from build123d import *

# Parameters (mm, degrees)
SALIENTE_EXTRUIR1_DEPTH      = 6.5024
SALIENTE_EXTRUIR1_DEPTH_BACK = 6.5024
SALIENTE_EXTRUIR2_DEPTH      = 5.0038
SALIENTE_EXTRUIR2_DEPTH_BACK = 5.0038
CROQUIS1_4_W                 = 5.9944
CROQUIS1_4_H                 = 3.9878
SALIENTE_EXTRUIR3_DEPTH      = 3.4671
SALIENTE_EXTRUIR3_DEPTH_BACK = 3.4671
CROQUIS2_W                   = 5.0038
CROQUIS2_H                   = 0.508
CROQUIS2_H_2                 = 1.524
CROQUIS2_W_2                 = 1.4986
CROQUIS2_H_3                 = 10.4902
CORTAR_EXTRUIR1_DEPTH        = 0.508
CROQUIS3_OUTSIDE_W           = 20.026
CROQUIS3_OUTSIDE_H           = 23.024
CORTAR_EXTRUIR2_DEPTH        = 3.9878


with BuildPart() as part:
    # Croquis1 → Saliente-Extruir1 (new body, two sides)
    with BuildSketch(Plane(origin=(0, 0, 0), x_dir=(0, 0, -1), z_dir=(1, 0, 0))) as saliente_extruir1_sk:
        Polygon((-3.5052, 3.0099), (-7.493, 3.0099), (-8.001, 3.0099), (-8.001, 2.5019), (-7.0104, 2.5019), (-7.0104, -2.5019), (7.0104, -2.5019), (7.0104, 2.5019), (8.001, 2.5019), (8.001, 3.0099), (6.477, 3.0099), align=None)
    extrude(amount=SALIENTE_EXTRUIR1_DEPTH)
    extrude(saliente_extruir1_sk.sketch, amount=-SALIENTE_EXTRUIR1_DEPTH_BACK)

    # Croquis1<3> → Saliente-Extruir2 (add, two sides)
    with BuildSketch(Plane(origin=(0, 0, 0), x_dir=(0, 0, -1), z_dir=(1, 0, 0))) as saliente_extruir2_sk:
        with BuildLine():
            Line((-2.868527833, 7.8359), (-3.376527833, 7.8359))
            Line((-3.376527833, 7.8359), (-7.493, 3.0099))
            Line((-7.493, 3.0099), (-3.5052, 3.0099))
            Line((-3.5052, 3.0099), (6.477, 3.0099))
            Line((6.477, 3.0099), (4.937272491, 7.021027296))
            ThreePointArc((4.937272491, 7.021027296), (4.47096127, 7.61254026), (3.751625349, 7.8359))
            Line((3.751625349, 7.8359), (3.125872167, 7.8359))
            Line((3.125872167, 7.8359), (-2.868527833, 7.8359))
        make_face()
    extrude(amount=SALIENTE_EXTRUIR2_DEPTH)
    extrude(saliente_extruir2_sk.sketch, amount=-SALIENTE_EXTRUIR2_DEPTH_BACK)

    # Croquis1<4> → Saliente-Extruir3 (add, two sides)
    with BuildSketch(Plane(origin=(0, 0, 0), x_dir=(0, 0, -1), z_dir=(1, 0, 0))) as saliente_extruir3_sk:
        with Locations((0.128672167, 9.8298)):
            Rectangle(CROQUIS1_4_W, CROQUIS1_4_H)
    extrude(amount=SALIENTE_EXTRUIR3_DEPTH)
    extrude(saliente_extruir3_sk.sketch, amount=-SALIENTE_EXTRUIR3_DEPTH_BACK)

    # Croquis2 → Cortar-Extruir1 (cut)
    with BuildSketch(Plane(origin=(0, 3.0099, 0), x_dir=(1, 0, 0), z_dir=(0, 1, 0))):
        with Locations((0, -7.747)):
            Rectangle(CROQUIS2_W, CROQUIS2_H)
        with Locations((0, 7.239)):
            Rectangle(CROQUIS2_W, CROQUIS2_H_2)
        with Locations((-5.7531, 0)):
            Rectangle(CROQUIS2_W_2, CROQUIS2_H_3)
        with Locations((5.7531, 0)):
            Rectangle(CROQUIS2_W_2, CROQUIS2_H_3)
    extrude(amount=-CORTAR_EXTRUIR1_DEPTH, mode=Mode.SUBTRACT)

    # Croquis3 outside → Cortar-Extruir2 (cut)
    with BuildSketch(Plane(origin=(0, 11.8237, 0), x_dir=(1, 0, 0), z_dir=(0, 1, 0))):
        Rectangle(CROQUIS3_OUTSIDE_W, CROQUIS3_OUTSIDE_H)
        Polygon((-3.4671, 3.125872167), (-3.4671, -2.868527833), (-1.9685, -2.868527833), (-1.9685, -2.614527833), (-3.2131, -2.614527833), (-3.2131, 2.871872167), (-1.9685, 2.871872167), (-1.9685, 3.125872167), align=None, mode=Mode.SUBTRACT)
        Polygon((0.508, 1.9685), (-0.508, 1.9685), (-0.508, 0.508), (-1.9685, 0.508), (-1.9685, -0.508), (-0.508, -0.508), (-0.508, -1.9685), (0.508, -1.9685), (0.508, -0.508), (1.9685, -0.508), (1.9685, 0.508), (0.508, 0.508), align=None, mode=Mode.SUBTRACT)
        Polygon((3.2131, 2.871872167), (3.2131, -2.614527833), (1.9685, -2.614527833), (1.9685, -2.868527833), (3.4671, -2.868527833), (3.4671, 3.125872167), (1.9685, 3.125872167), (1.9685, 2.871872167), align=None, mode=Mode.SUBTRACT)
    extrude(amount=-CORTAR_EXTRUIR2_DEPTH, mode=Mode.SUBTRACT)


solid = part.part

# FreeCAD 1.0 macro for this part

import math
import FreeCAD as App
import Part
import Sketcher
Q = App.Units.Quantity

doc = App.newDocument("Part")
body = doc.addObject("PartDesign::Body", "Body")

# Sketch on YZ plane
sketch1 = body.newObject("Sketcher::SketchObject", "Sketch")
sketch1.AttachmentSupport = (doc.getObject("YZ_Plane"), [""])
sketch1.MapMode = "FlatFace"
sketch1.addGeometry([
    Part.LineSegment(App.Vector(3.0099, 8.001, 0), App.Vector(2.5019, 8.001, 0)),  # 0
    Part.LineSegment(App.Vector(2.5019, 8.001, 0), App.Vector(2.5019, 7.0104, 0)),  # 1
    Part.LineSegment(App.Vector(2.5019, 7.0104, 0), App.Vector(-2.5019, 7.0104, 0)),  # 2
    Part.LineSegment(App.Vector(-2.5019, 7.0104, 0), App.Vector(-2.5019, -7.0104, 0)),  # 3
    Part.LineSegment(App.Vector(-2.5019, -7.0104, 0), App.Vector(2.5019, -7.0104, 0)),  # 4
    Part.LineSegment(App.Vector(2.5019, -7.0104, 0), App.Vector(2.5019, -8.001, 0)),  # 5
    Part.LineSegment(App.Vector(2.5019, -8.001, 0), App.Vector(3.0099, -8.001, 0)),  # 6
    Part.LineSegment(App.Vector(3.0099, -8.001, 0), App.Vector(3.0099, 8.001, 0)),  # 7
], False)
sketch1.addConstraint([
    Sketcher.Constraint("Coincident", 0, 2, 1, 1),
    Sketcher.Constraint("Coincident", 1, 2, 2, 1),
    Sketcher.Constraint("Coincident", 2, 2, 3, 1),
    Sketcher.Constraint("Coincident", 3, 2, 4, 1),
    Sketcher.Constraint("Coincident", 4, 2, 5, 1),
    Sketcher.Constraint("Coincident", 5, 2, 6, 1),
    Sketcher.Constraint("Coincident", 6, 2, 7, 1),
    Sketcher.Constraint("Coincident", 7, 2, 0, 1),
    Sketcher.Constraint("Horizontal", 0),
    Sketcher.Constraint("Vertical", 1),
    Sketcher.Constraint("Horizontal", 2),
    Sketcher.Constraint("Vertical", 3),
    Sketcher.Constraint("Horizontal", 4),
    Sketcher.Constraint("Vertical", 5),
    Sketcher.Constraint("Horizontal", 6),
    Sketcher.Constraint("Vertical", 7),
    Sketcher.Constraint("Symmetric", 1, 2, 3, 2, -1, 1),
    Sketcher.Constraint("Symmetric", 0, 2, 5, 2, -1),
    Sketcher.Constraint("DistanceX", 0, 2, 0, 1, Q("0.02 in")),
    Sketcher.Constraint("DistanceY", 7, 1, 7, 2, Q("0.63 in")),
    Sketcher.Constraint("DistanceX", 2, 2, 2, 1, Q("0.197 in")),
    Sketcher.Constraint("DistanceY", 1, 2, 1, 1, Q("0.039 in")),
])
pad1 = body.newObject("PartDesign::Pad", "Pad")
pad1.Profile = sketch1
pad1.Type = "TwoLengths"
pad1.Length = Q("0.256 in")
pad1.Length2 = Q("0.256 in")

# Sketch on YZ plane
sketch2 = body.newObject("Sketcher::SketchObject", "Sketch001")
sketch2.AttachmentSupport = (doc.getObject("YZ_Plane"), [""])
sketch2.MapMode = "FlatFace"
sketch2.addGeometry([
    Part.LineSegment(App.Vector(7.8359, 3.376528, 0), App.Vector(3.0099, 7.493, 0)),  # 0
    Part.LineSegment(App.Vector(3.0099, 7.493, 0), App.Vector(3.0099, -6.477, 0)),  # 1
    Part.LineSegment(App.Vector(3.0099, -6.477, 0), App.Vector(7.021027, -4.937272, 0)),  # 2
    Part.ArcOfCircle(Part.Circle(App.Vector(6.5659, -3.751625, 0), App.Vector(0, 0, 1), 1.27), math.radians(-69), math.radians(0)),  # 3
    Part.LineSegment(App.Vector(7.8359, -3.751625, 0), App.Vector(7.8359, 3.376528, 0)),  # 4
], False)
sketch2.addConstraint([
    Sketcher.Constraint("Coincident", 0, 2, 1, 1),
    Sketcher.Constraint("Coincident", 1, 2, 2, 1),
    Sketcher.Constraint("Tangent", 2, 2, 3, 1),
    Sketcher.Constraint("Tangent", 3, 2, 4, 1),
    Sketcher.Constraint("Coincident", 4, 2, 0, 1),
    Sketcher.Constraint("Vertical", 1),
    Sketcher.Constraint("Vertical", 4),
    Sketcher.Constraint("Radius", 3, Q("0.05 in")),
    Sketcher.Constraint("Angle", 2, Q("21 deg")),
    Sketcher.Constraint("DistanceY", 1, 2, 1, 1, Q("0.55 in")),
    Sketcher.Constraint("DistanceX", 0, 2, 3, 3, Q("0.14 in")),
    Sketcher.Constraint("DistanceY", -1, 1, 0, 2, Q("0.295 in")),
    Sketcher.Constraint("DistanceX", -1, 1, 3, 3, Q("0.2585 in")),
    Sketcher.Constraint("DistanceY", 2, 2, 4, 2, 8.3138),
])
pad2 = body.newObject("PartDesign::Pad", "Pad001")
pad2.Profile = sketch2
pad2.Type = "TwoLengths"
pad2.Length = Q("0.197 in")
pad2.Length2 = Q("0.197 in")

# Sketch on YZ plane
sketch3 = body.newObject("Sketcher::SketchObject", "Sketch002")
sketch3.AttachmentSupport = (doc.getObject("YZ_Plane"), [""])
sketch3.MapMode = "FlatFace"
sketch3.addGeometry([
    Part.LineSegment(App.Vector(11.8237, 2.868528, 0), App.Vector(7.8359, 2.868528, 0)),
    Part.LineSegment(App.Vector(7.8359, 2.868528, 0), App.Vector(7.8359, -3.125872, 0)),
    Part.LineSegment(App.Vector(7.8359, -3.125872, 0), App.Vector(11.8237, -3.125872, 0)),
    Part.LineSegment(App.Vector(11.8237, -3.125872, 0), App.Vector(11.8237, 2.868528, 0)),
], False)
sketch3.addConstraint([
    Sketcher.Constraint("Coincident", 0, 2, 1, 1),
    Sketcher.Constraint("Coincident", 1, 2, 2, 1),
    Sketcher.Constraint("Coincident", 2, 2, 3, 1),
    Sketcher.Constraint("Coincident", 3, 2, 0, 1),
    Sketcher.Constraint("Horizontal", 0),
    Sketcher.Constraint("Vertical", 1),
    Sketcher.Constraint("Horizontal", 2),
    Sketcher.Constraint("Vertical", 3),
    Sketcher.Constraint("DistanceX", 0, 2, 0, 1, Q("0.157 in")),
    Sketcher.Constraint("DistanceY", 1, 2, 1, 1, Q("0.236 in")),
    Sketcher.Constraint("DistanceX", -1, 1, 0, 2, Q("0.3085 in")),
    Sketcher.Constraint("DistanceY", -1, 1, 0, 2, 2.868528),
])
pad3 = body.newObject("PartDesign::Pad", "Pad002")
pad3.Profile = sketch3
pad3.Type = "TwoLengths"
pad3.Length = Q("0.1365 in")
pad3.Length2 = Q("0.1365 in")

# Sketch on XZ plane
sketch4 = body.newObject("Sketcher::SketchObject", "Sketch003")
sketch4.AttachmentSupport = (doc.getObject("XZ_Plane"), [""])
sketch4.MapMode = "FlatFace"
sketch4.AttachmentOffset = App.Placement(App.Vector(0, 0, -0.1185 * 25.4), App.Rotation())
sketch4.addGeometry([
    Part.LineSegment(App.Vector(-2.5019, 7.493, 0), App.Vector(-2.5019, 8.001, 0)),  # 0
    Part.LineSegment(App.Vector(-2.5019, 8.001, 0), App.Vector(2.5019, 8.001, 0)),  # 1
    Part.LineSegment(App.Vector(2.5019, 8.001, 0), App.Vector(2.5019, 7.493, 0)),  # 2
    Part.LineSegment(App.Vector(2.5019, 7.493, 0), App.Vector(-2.5019, 7.493, 0)),  # 3
    Part.LineSegment(App.Vector(-2.5019, -8.001, 0), App.Vector(-2.5019, -6.477, 0)),  # 4
    Part.LineSegment(App.Vector(-2.5019, -6.477, 0), App.Vector(2.5019, -6.477, 0)),  # 5
    Part.LineSegment(App.Vector(2.5019, -6.477, 0), App.Vector(2.5019, -8.001, 0)),  # 6
    Part.LineSegment(App.Vector(2.5019, -8.001, 0), App.Vector(-2.5019, -8.001, 0)),  # 7
    Part.LineSegment(App.Vector(-6.5024, -5.2451, 0), App.Vector(-6.5024, 5.2451, 0)),  # 8
    Part.LineSegment(App.Vector(-6.5024, 5.2451, 0), App.Vector(-5.0038, 5.2451, 0)),  # 9
    Part.LineSegment(App.Vector(-5.0038, 5.2451, 0), App.Vector(-5.0038, -5.2451, 0)),  # 10
    Part.LineSegment(App.Vector(-5.0038, -5.2451, 0), App.Vector(-6.5024, -5.2451, 0)),  # 11
    Part.LineSegment(App.Vector(5.0038, -5.2451, 0), App.Vector(5.0038, 5.2451, 0)),  # 12
    Part.LineSegment(App.Vector(5.0038, 5.2451, 0), App.Vector(6.5024, 5.2451, 0)),  # 13
    Part.LineSegment(App.Vector(6.5024, 5.2451, 0), App.Vector(6.5024, -5.2451, 0)),  # 14
    Part.LineSegment(App.Vector(6.5024, -5.2451, 0), App.Vector(5.0038, -5.2451, 0)),  # 15
], False)
sketch4.addConstraint([
    Sketcher.Constraint("Coincident", 0, 2, 1, 1),
    Sketcher.Constraint("Coincident", 1, 2, 2, 1),
    Sketcher.Constraint("Coincident", 2, 2, 3, 1),
    Sketcher.Constraint("Coincident", 3, 2, 0, 1),
    Sketcher.Constraint("Coincident", 4, 2, 5, 1),
    Sketcher.Constraint("Coincident", 5, 2, 6, 1),
    Sketcher.Constraint("Coincident", 6, 2, 7, 1),
    Sketcher.Constraint("Coincident", 7, 2, 4, 1),
    Sketcher.Constraint("Coincident", 8, 2, 9, 1),
    Sketcher.Constraint("Coincident", 9, 2, 10, 1),
    Sketcher.Constraint("Coincident", 10, 2, 11, 1),
    Sketcher.Constraint("Coincident", 11, 2, 8, 1),
    Sketcher.Constraint("Coincident", 12, 2, 13, 1),
    Sketcher.Constraint("Coincident", 13, 2, 14, 1),
    Sketcher.Constraint("Coincident", 14, 2, 15, 1),
    Sketcher.Constraint("Coincident", 15, 2, 12, 1),
    Sketcher.Constraint("Vertical", 0),
    Sketcher.Constraint("Horizontal", 1),
    Sketcher.Constraint("Vertical", 2),
    Sketcher.Constraint("Horizontal", 3),
    Sketcher.Constraint("Vertical", 4),
    Sketcher.Constraint("Horizontal", 5),
    Sketcher.Constraint("Vertical", 6),
    Sketcher.Constraint("Horizontal", 7),
    Sketcher.Constraint("Vertical", 8),
    Sketcher.Constraint("Horizontal", 9),
    Sketcher.Constraint("Vertical", 10),
    Sketcher.Constraint("Horizontal", 11),
    Sketcher.Constraint("Vertical", 12),
    Sketcher.Constraint("Horizontal", 13),
    Sketcher.Constraint("Vertical", 14),
    Sketcher.Constraint("Horizontal", 15),
    Sketcher.Constraint("Symmetric", 0, 2, 6, 2, -1, 1),
    Sketcher.Constraint("Symmetric", 10, 2, 12, 2, -1, 1),
    Sketcher.Constraint("Symmetric", 8, 2, 14, 2, -1, 1),
    Sketcher.Constraint("Horizontal", 9, 2, 12, 2),
    Sketcher.Constraint("Vertical", 3, 2, 4, 2),
    Sketcher.Constraint("Vertical", 2, 2, 5, 2),
    Sketcher.Constraint("DistanceY", 0, 1, 0, 2, Q("0.02 in")),
    Sketcher.Constraint("DistanceY", 4, 1, 4, 2, Q("0.06 in")),
    Sketcher.Constraint("DistanceX", 1, 1, 1, 2, Q("0.197 in")),
    Sketcher.Constraint("DistanceX", 9, 1, 9, 2, Q("0.059 in")),
    Sketcher.Constraint("DistanceY", 8, 1, 8, 2, Q("0.413 in")),
    Sketcher.Constraint("DistanceY", 4, 2, 3, 2, Q("0.55 in")),
    Sketcher.Constraint("DistanceX", 8, 2, -1, 1, Q("0.256 in")),
])
pocket1 = body.newObject("PartDesign::Pocket", "Pocket")
pocket1.Profile = sketch4
pocket1.Length = Q("0.02 in")
pocket1.Reversed = True

# Sketch on XZ plane
sketch5 = body.newObject("Sketcher::SketchObject", "Sketch004")
sketch5.AttachmentSupport = (doc.getObject("XZ_Plane"), [""])
sketch5.MapMode = "FlatFace"
sketch5.AttachmentOffset = App.Placement(App.Vector(0, 0, -0.4655 * 25.4), App.Rotation())
sketch5.addGeometry([
    Part.LineSegment(App.Vector(-10.013, -11.512, 0), App.Vector(-10.013, 11.512, 0)),  # 0
    Part.LineSegment(App.Vector(-10.013, 11.512, 0), App.Vector(10.013, 11.512, 0)),  # 1
    Part.LineSegment(App.Vector(10.013, 11.512, 0), App.Vector(10.013, -11.512, 0)),  # 2
    Part.LineSegment(App.Vector(10.013, -11.512, 0), App.Vector(-10.013, -11.512, 0)),  # 3
    Part.LineSegment(App.Vector(-3.4671, 2.868528, 0), App.Vector(-3.4671, -3.125872, 0)),  # 4
    Part.LineSegment(App.Vector(-3.4671, -3.125872, 0), App.Vector(-1.9685, -3.125872, 0)),  # 5
    Part.LineSegment(App.Vector(-1.9685, -3.125872, 0), App.Vector(-1.9685, -2.871872, 0)),  # 6
    Part.LineSegment(App.Vector(-1.9685, -2.871872, 0), App.Vector(-3.2131, -2.871872, 0)),  # 7
    Part.LineSegment(App.Vector(-3.2131, -2.871872, 0), App.Vector(-3.2131, 2.614528, 0)),  # 8
    Part.LineSegment(App.Vector(-3.2131, 2.614528, 0), App.Vector(-1.9685, 2.614528, 0)),  # 9
    Part.LineSegment(App.Vector(-1.9685, 2.614528, 0), App.Vector(-1.9685, 2.868528, 0)),  # 10
    Part.LineSegment(App.Vector(-1.9685, 2.868528, 0), App.Vector(-3.4671, 2.868528, 0)),  # 11
    Part.LineSegment(App.Vector(-0.508, -1.9685, 0), App.Vector(0.508, -1.9685, 0)),  # 12
    Part.LineSegment(App.Vector(0.508, -1.9685, 0), App.Vector(0.508, -0.508, 0)),  # 13
    Part.LineSegment(App.Vector(0.508, -0.508, 0), App.Vector(1.9685, -0.508, 0)),  # 14
    Part.LineSegment(App.Vector(1.9685, -0.508, 0), App.Vector(1.9685, 0.508, 0)),  # 15
    Part.LineSegment(App.Vector(1.9685, 0.508, 0), App.Vector(0.508, 0.508, 0)),  # 16
    Part.LineSegment(App.Vector(0.508, 0.508, 0), App.Vector(0.508, 1.9685, 0)),  # 17
    Part.LineSegment(App.Vector(0.508, 1.9685, 0), App.Vector(-0.508, 1.9685, 0)),  # 18
    Part.LineSegment(App.Vector(-0.508, 1.9685, 0), App.Vector(-0.508, 0.508, 0)),  # 19
    Part.LineSegment(App.Vector(-0.508, 0.508, 0), App.Vector(-1.9685, 0.508, 0)),  # 20
    Part.LineSegment(App.Vector(-1.9685, 0.508, 0), App.Vector(-1.9685, -0.508, 0)),  # 21
    Part.LineSegment(App.Vector(-1.9685, -0.508, 0), App.Vector(-0.508, -0.508, 0)),  # 22
    Part.LineSegment(App.Vector(-0.508, -0.508, 0), App.Vector(-0.508, -1.9685, 0)),  # 23
    Part.LineSegment(App.Vector(3.2131, 2.614528, 0), App.Vector(3.2131, -2.871872, 0)),  # 24
    Part.LineSegment(App.Vector(3.2131, -2.871872, 0), App.Vector(1.9685, -2.871872, 0)),  # 25
    Part.LineSegment(App.Vector(1.9685, -2.871872, 0), App.Vector(1.9685, -3.125872, 0)),  # 26
    Part.LineSegment(App.Vector(1.9685, -3.125872, 0), App.Vector(3.4671, -3.125872, 0)),  # 27
    Part.LineSegment(App.Vector(3.4671, -3.125872, 0), App.Vector(3.4671, 2.868528, 0)),  # 28
    Part.LineSegment(App.Vector(3.4671, 2.868528, 0), App.Vector(1.9685, 2.868528, 0)),  # 29
    Part.LineSegment(App.Vector(1.9685, 2.868528, 0), App.Vector(1.9685, 2.614528, 0)),  # 30
    Part.LineSegment(App.Vector(1.9685, 2.614528, 0), App.Vector(3.2131, 2.614528, 0)),  # 31
], False)
sketch5.addConstraint([
    Sketcher.Constraint("Coincident", 0, 2, 1, 1),
    Sketcher.Constraint("Coincident", 1, 2, 2, 1),
    Sketcher.Constraint("Coincident", 2, 2, 3, 1),
    Sketcher.Constraint("Coincident", 3, 2, 0, 1),
    Sketcher.Constraint("Coincident", 4, 2, 5, 1),
    Sketcher.Constraint("Coincident", 5, 2, 6, 1),
    Sketcher.Constraint("Coincident", 6, 2, 7, 1),
    Sketcher.Constraint("Coincident", 7, 2, 8, 1),
    Sketcher.Constraint("Coincident", 8, 2, 9, 1),
    Sketcher.Constraint("Coincident", 9, 2, 10, 1),
    Sketcher.Constraint("Coincident", 10, 2, 11, 1),
    Sketcher.Constraint("Coincident", 11, 2, 4, 1),
    Sketcher.Constraint("Coincident", 12, 2, 13, 1),
    Sketcher.Constraint("Coincident", 13, 2, 14, 1),
    Sketcher.Constraint("Coincident", 14, 2, 15, 1),
    Sketcher.Constraint("Coincident", 15, 2, 16, 1),
    Sketcher.Constraint("Coincident", 16, 2, 17, 1),
    Sketcher.Constraint("Coincident", 17, 2, 18, 1),
    Sketcher.Constraint("Coincident", 18, 2, 19, 1),
    Sketcher.Constraint("Coincident", 19, 2, 20, 1),
    Sketcher.Constraint("Coincident", 20, 2, 21, 1),
    Sketcher.Constraint("Coincident", 21, 2, 22, 1),
    Sketcher.Constraint("Coincident", 22, 2, 23, 1),
    Sketcher.Constraint("Coincident", 23, 2, 12, 1),
    Sketcher.Constraint("Coincident", 24, 2, 25, 1),
    Sketcher.Constraint("Coincident", 25, 2, 26, 1),
    Sketcher.Constraint("Coincident", 26, 2, 27, 1),
    Sketcher.Constraint("Coincident", 27, 2, 28, 1),
    Sketcher.Constraint("Coincident", 28, 2, 29, 1),
    Sketcher.Constraint("Coincident", 29, 2, 30, 1),
    Sketcher.Constraint("Coincident", 30, 2, 31, 1),
    Sketcher.Constraint("Coincident", 31, 2, 24, 1),
    Sketcher.Constraint("Vertical", 0),
    Sketcher.Constraint("Horizontal", 1),
    Sketcher.Constraint("Vertical", 2),
    Sketcher.Constraint("Horizontal", 3),
    Sketcher.Constraint("Vertical", 4),
    Sketcher.Constraint("Horizontal", 5),
    Sketcher.Constraint("Vertical", 6),
    Sketcher.Constraint("Horizontal", 7),
    Sketcher.Constraint("Vertical", 8),
    Sketcher.Constraint("Horizontal", 9),
    Sketcher.Constraint("Vertical", 10),
    Sketcher.Constraint("Horizontal", 11),
    Sketcher.Constraint("Horizontal", 12),
    Sketcher.Constraint("Vertical", 13),
    Sketcher.Constraint("Horizontal", 14),
    Sketcher.Constraint("Vertical", 15),
    Sketcher.Constraint("Horizontal", 16),
    Sketcher.Constraint("Vertical", 17),
    Sketcher.Constraint("Horizontal", 18),
    Sketcher.Constraint("Vertical", 19),
    Sketcher.Constraint("Horizontal", 20),
    Sketcher.Constraint("Vertical", 21),
    Sketcher.Constraint("Horizontal", 22),
    Sketcher.Constraint("Vertical", 23),
    Sketcher.Constraint("Vertical", 24),
    Sketcher.Constraint("Horizontal", 25),
    Sketcher.Constraint("Vertical", 26),
    Sketcher.Constraint("Horizontal", 27),
    Sketcher.Constraint("Vertical", 28),
    Sketcher.Constraint("Horizontal", 29),
    Sketcher.Constraint("Vertical", 30),
    Sketcher.Constraint("Horizontal", 31),
    Sketcher.Constraint("Symmetric", 0, 2, 2, 2, -1, 1),
    Sketcher.Constraint("Symmetric", 12, 2, 18, 2, -1, 1),
    Sketcher.Constraint("Symmetric", 14, 2, 20, 2, -1, 1),
    Sketcher.Constraint("Symmetric", 16, 2, 22, 2, -1, 1),
    Sketcher.Constraint("Symmetric", 16, 2, 19, 2, -2),
    Sketcher.Constraint("Symmetric", 7, 2, 24, 2, -2),
    Sketcher.Constraint("Symmetric", 5, 2, 26, 2, -2),
    Sketcher.Constraint("Symmetric", 11, 2, 28, 2, -2),
    Sketcher.Constraint("Symmetric", 9, 2, 30, 2, -2),
    Sketcher.Constraint("Vertical", 6, 2, 9, 2),
    Sketcher.Constraint("Vertical", 10, 2, 20, 2),
    Sketcher.Constraint("Equal", 6, 10),
    Sketcher.Constraint("Equal", 22, 13),
    Sketcher.Constraint("Equal", 18, 15),
    Sketcher.Constraint("DistanceX", 12, 1, 12, 2, Q("0.04 in")),
    Sketcher.Constraint("DistanceY", 6, 1, 6, 2, Q("0.01 in")),
    Sketcher.Constraint("DistanceX", 5, 1, 5, 2, Q("0.059 in")),
    Sketcher.Constraint("DistanceX", 7, 2, 7, 1, Q("0.049 in")),
    Sketcher.Constraint("DistanceY", 4, 2, 4, 1, Q("0.236 in")),
    Sketcher.Constraint("DistanceX", 14, 1, 14, 2, Q("0.0575 in")),
    Sketcher.Constraint("DistanceX", 1, 1, 1, 2, 20.026),
    Sketcher.Constraint("DistanceY", 0, 1, 0, 2, 23.024),
    Sketcher.Constraint("DistanceY", 4, 2, -1, 1, 3.125872),
])
pocket2 = body.newObject("PartDesign::Pocket", "Pocket001")
pocket2.Profile = sketch5
pocket2.Length = Q("0.157 in")
pocket2.Reversed = True

doc.recompute()
